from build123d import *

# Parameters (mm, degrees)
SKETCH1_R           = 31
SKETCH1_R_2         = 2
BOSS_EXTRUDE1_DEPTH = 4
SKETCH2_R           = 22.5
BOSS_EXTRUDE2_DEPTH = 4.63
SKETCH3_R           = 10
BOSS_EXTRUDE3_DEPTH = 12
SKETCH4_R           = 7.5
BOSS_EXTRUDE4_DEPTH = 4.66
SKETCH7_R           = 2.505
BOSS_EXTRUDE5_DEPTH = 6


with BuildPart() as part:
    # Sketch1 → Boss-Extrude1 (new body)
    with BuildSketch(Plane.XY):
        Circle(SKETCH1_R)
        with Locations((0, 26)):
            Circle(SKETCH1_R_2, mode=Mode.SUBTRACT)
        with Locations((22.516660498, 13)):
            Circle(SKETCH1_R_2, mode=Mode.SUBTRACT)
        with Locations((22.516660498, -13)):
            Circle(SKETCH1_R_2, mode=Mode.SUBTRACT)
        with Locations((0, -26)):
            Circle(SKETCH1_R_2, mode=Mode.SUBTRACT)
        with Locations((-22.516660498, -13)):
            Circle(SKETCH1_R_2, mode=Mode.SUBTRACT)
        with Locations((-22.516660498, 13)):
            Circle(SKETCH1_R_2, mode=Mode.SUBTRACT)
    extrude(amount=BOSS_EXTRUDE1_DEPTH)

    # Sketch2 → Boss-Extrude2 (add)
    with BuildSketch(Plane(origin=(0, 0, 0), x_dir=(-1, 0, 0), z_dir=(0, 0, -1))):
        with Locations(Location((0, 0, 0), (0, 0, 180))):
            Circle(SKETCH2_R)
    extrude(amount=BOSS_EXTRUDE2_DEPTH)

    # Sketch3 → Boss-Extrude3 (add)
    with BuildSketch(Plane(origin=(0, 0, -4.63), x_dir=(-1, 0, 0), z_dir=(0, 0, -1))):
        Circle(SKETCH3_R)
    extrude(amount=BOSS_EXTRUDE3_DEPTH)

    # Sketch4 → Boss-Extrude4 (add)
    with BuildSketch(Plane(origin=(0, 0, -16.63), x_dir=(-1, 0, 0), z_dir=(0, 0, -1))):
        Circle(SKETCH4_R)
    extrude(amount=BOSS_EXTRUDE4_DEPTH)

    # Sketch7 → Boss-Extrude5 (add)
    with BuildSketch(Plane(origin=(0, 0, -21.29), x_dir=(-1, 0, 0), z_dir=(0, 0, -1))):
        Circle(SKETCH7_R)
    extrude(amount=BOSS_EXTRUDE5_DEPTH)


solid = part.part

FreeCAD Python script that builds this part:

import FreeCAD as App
import Part
import Sketcher
Q = App.Units.Quantity

doc = App.newDocument("Part")
params = doc.addObject("Spreadsheet::Sheet", "Params")
for row, (alias, value) in enumerate([
    ("sketch1_diameter", "62 mm"),
    ("sketch1_diameter2", "4 mm"),
    ("pad1_length", "4 mm"),
    ("sketch2_diameter", "45 mm"),
    ("pad2_length", "4.63 mm"),
    ("sketch3_diameter", "20 mm"),
    ("pad3_length", "12 mm"),
    ("sketch4_diameter", "15 mm"),
    ("pad4_length", "4.66 mm"),
    ("sketch5_diameter", "5.01 mm"),
    ("pad5_length", "6 mm"),
], start=1):
    params.set(f"A{row}", alias)
    params.set(f"B{row}", "=" + value)
    params.setAlias(f"B{row}", alias)

body = doc.addObject("PartDesign::Body", "Body")

sketch1 = body.newObject("Sketcher::SketchObject", "Sketch")
sketch1.AttachmentSupport = (doc.getObject("XY_Plane"), [""])
sketch1.MapMode = "FlatFace"
sketch1.addGeometry([
    Part.Circle(App.Vector(0, 0, 0), App.Vector(0, 0, 1), 31),
    Part.Circle(App.Vector(-22.51666, -13, 0), App.Vector(0, 0, 1), 2),
    Part.Circle(App.Vector(0, -26, 0), App.Vector(0, 0, 1), 2),
    Part.Circle(App.Vector(22.51666, -13, 0), App.Vector(0, 0, 1), 2),
    Part.Circle(App.Vector(-22.51666, 13, 0), App.Vector(0, 0, 1), 2),
    Part.Circle(App.Vector(22.51666, 13, 0), App.Vector(0, 0, 1), 2),
    Part.Circle(App.Vector(0, 26, 0), App.Vector(0, 0, 1), 2),
], False)
sketch1.addConstraint([
    Sketcher.Constraint("Coincident", 0, 3, -1, 1),
    Sketcher.Constraint("Equal", 1, 2),
    Sketcher.Constraint("Equal", 2, 3),
    Sketcher.Constraint("Equal", 3, 4),
    Sketcher.Constraint("Equal", 4, 5),
    Sketcher.Constraint("Equal", 5, 6),
    Sketcher.Constraint("Symmetric", 3, 3, 4, 3, -1, 1),
    Sketcher.Constraint("Symmetric", 1, 3, 5, 3, -1, 1),
    Sketcher.Constraint("Symmetric", 2, 3, 6, 3, -1, 1),
    Sketcher.Constraint("Symmetric", 1, 3, 3, 3, -2),
    Sketcher.Constraint("PointOnObject", 2, 3, -2),
    Sketcher.Constraint("Diameter", 0, Q("62 mm")),
    Sketcher.Constraint("Diameter", 1, Q("4 mm")),
    Sketcher.Constraint("DistanceY", 1, 3, -1, 1, Q("13 mm")),
    Sketcher.Constraint("DistanceY", 2, 3, -1, 1, Q("26 mm")),
    Sketcher.Constraint("DistanceX", 1, 3, -1, 1, Q("22.51666 mm")),
])
sketch1.setExpression("Constraints[11]", "Params.sketch1_diameter")
sketch1.setExpression("Constraints[12]", "Params.sketch1_diameter2")
pad1 = body.newObject("PartDesign::Pad", "Pad")
pad1.Profile = sketch1
pad1.setExpression("Length", "Params.pad1_length")

sketch2 = body.newObject("Sketcher::SketchObject", "Sketch001")
sketch2.AttachmentSupport = (doc.getObject("XY_Plane"), [""])
sketch2.MapMode = "FlatFace"
sketch2.addGeometry(Part.Circle(App.Vector(0, 0, 0), App.Vector(0, 0, 1), 22.5), False)
sketch2.addConstraint([
    Sketcher.Constraint("Coincident", 0, 3, -1, 1),
    Sketcher.Constraint("Diameter", 0, Q("45 mm")),
])
sketch2.setExpression("Constraints[1]", "Params.sketch2_diameter")
pad2 = body.newObject("PartDesign::Pad", "Pad001")
pad2.Profile = sketch2
pad2.setExpression("Length", "Params.pad2_length")
pad2.Reversed = True

sketch3 = body.newObject("Sketcher::SketchObject", "Sketch002")
sketch3.AttachmentSupport = (doc.getObject("XY_Plane"), [""])
sketch3.MapMode = "FlatFace"
sketch3.AttachmentOffset = App.Placement(App.Vector(0, 0, -4.63), App.Rotation())
sketch3.addGeometry(Part.Circle(App.Vector(0, 0, 0), App.Vector(0, 0, 1), 10), False)
sketch3.addConstraint([
    Sketcher.Constraint("Coincident", 0, 3, -1, 1),
    Sketcher.Constraint("Diameter", 0, Q("20 mm")),
])
sketch3.setExpression("Constraints[1]", "Params.sketch3_diameter")
pad3 = body.newObject("PartDesign::Pad", "Pad002")
pad3.Profile = sketch3
pad3.setExpression("Length", "Params.pad3_length")
pad3.Reversed = True

sketch4 = body.newObject("Sketcher::SketchObject", "Sketch003")
sketch4.AttachmentSupport = (doc.getObject("XY_Plane"), [""])
sketch4.MapMode = "FlatFace"
sketch4.AttachmentOffset = App.Placement(App.Vector(0, 0, -16.63), App.Rotation())
sketch4.addGeometry(Part.Circle(App.Vector(0, 0, 0), App.Vector(0, 0, 1), 7.5), False)
sketch4.addConstraint([
    Sketcher.Constraint("Coincident", 0, 3, -1, 1),
    Sketcher.Constraint("Diameter", 0, Q("15 mm")),
])
sketch4.setExpression("Constraints[1]", "Params.sketch4_diameter")
pad4 = body.newObject("PartDesign::Pad", "Pad003")
pad4.Profile = sketch4
pad4.setExpression("Length", "Params.pad4_length")
pad4.Reversed = True

sketch5 = body.newObject("Sketcher::SketchObject", "Sketch004")
sketch5.AttachmentSupport = (doc.getObject("XY_Plane"), [""])
sketch5.MapMode = "FlatFace"
sketch5.AttachmentOffset = App.Placement(App.Vector(0, 0, -21.29), App.Rotation())
sketch5.addGeometry(Part.Circle(App.Vector(0, 0, 0), App.Vector(0, 0, 1), 2.505), False)
sketch5.addConstraint([
    Sketcher.Constraint("Coincident", 0, 3, -1, 1),
    Sketcher.Constraint("Diameter", 0, Q("5.01 mm")),
])
sketch5.setExpression("Constraints[1]", "Params.sketch5_diameter")
pad5 = body.newObject("PartDesign::Pad", "Pad004")
pad5.Profile = sketch5
pad5.setExpression("Length", "Params.pad5_length")
pad5.Reversed = True

doc.recompute()
